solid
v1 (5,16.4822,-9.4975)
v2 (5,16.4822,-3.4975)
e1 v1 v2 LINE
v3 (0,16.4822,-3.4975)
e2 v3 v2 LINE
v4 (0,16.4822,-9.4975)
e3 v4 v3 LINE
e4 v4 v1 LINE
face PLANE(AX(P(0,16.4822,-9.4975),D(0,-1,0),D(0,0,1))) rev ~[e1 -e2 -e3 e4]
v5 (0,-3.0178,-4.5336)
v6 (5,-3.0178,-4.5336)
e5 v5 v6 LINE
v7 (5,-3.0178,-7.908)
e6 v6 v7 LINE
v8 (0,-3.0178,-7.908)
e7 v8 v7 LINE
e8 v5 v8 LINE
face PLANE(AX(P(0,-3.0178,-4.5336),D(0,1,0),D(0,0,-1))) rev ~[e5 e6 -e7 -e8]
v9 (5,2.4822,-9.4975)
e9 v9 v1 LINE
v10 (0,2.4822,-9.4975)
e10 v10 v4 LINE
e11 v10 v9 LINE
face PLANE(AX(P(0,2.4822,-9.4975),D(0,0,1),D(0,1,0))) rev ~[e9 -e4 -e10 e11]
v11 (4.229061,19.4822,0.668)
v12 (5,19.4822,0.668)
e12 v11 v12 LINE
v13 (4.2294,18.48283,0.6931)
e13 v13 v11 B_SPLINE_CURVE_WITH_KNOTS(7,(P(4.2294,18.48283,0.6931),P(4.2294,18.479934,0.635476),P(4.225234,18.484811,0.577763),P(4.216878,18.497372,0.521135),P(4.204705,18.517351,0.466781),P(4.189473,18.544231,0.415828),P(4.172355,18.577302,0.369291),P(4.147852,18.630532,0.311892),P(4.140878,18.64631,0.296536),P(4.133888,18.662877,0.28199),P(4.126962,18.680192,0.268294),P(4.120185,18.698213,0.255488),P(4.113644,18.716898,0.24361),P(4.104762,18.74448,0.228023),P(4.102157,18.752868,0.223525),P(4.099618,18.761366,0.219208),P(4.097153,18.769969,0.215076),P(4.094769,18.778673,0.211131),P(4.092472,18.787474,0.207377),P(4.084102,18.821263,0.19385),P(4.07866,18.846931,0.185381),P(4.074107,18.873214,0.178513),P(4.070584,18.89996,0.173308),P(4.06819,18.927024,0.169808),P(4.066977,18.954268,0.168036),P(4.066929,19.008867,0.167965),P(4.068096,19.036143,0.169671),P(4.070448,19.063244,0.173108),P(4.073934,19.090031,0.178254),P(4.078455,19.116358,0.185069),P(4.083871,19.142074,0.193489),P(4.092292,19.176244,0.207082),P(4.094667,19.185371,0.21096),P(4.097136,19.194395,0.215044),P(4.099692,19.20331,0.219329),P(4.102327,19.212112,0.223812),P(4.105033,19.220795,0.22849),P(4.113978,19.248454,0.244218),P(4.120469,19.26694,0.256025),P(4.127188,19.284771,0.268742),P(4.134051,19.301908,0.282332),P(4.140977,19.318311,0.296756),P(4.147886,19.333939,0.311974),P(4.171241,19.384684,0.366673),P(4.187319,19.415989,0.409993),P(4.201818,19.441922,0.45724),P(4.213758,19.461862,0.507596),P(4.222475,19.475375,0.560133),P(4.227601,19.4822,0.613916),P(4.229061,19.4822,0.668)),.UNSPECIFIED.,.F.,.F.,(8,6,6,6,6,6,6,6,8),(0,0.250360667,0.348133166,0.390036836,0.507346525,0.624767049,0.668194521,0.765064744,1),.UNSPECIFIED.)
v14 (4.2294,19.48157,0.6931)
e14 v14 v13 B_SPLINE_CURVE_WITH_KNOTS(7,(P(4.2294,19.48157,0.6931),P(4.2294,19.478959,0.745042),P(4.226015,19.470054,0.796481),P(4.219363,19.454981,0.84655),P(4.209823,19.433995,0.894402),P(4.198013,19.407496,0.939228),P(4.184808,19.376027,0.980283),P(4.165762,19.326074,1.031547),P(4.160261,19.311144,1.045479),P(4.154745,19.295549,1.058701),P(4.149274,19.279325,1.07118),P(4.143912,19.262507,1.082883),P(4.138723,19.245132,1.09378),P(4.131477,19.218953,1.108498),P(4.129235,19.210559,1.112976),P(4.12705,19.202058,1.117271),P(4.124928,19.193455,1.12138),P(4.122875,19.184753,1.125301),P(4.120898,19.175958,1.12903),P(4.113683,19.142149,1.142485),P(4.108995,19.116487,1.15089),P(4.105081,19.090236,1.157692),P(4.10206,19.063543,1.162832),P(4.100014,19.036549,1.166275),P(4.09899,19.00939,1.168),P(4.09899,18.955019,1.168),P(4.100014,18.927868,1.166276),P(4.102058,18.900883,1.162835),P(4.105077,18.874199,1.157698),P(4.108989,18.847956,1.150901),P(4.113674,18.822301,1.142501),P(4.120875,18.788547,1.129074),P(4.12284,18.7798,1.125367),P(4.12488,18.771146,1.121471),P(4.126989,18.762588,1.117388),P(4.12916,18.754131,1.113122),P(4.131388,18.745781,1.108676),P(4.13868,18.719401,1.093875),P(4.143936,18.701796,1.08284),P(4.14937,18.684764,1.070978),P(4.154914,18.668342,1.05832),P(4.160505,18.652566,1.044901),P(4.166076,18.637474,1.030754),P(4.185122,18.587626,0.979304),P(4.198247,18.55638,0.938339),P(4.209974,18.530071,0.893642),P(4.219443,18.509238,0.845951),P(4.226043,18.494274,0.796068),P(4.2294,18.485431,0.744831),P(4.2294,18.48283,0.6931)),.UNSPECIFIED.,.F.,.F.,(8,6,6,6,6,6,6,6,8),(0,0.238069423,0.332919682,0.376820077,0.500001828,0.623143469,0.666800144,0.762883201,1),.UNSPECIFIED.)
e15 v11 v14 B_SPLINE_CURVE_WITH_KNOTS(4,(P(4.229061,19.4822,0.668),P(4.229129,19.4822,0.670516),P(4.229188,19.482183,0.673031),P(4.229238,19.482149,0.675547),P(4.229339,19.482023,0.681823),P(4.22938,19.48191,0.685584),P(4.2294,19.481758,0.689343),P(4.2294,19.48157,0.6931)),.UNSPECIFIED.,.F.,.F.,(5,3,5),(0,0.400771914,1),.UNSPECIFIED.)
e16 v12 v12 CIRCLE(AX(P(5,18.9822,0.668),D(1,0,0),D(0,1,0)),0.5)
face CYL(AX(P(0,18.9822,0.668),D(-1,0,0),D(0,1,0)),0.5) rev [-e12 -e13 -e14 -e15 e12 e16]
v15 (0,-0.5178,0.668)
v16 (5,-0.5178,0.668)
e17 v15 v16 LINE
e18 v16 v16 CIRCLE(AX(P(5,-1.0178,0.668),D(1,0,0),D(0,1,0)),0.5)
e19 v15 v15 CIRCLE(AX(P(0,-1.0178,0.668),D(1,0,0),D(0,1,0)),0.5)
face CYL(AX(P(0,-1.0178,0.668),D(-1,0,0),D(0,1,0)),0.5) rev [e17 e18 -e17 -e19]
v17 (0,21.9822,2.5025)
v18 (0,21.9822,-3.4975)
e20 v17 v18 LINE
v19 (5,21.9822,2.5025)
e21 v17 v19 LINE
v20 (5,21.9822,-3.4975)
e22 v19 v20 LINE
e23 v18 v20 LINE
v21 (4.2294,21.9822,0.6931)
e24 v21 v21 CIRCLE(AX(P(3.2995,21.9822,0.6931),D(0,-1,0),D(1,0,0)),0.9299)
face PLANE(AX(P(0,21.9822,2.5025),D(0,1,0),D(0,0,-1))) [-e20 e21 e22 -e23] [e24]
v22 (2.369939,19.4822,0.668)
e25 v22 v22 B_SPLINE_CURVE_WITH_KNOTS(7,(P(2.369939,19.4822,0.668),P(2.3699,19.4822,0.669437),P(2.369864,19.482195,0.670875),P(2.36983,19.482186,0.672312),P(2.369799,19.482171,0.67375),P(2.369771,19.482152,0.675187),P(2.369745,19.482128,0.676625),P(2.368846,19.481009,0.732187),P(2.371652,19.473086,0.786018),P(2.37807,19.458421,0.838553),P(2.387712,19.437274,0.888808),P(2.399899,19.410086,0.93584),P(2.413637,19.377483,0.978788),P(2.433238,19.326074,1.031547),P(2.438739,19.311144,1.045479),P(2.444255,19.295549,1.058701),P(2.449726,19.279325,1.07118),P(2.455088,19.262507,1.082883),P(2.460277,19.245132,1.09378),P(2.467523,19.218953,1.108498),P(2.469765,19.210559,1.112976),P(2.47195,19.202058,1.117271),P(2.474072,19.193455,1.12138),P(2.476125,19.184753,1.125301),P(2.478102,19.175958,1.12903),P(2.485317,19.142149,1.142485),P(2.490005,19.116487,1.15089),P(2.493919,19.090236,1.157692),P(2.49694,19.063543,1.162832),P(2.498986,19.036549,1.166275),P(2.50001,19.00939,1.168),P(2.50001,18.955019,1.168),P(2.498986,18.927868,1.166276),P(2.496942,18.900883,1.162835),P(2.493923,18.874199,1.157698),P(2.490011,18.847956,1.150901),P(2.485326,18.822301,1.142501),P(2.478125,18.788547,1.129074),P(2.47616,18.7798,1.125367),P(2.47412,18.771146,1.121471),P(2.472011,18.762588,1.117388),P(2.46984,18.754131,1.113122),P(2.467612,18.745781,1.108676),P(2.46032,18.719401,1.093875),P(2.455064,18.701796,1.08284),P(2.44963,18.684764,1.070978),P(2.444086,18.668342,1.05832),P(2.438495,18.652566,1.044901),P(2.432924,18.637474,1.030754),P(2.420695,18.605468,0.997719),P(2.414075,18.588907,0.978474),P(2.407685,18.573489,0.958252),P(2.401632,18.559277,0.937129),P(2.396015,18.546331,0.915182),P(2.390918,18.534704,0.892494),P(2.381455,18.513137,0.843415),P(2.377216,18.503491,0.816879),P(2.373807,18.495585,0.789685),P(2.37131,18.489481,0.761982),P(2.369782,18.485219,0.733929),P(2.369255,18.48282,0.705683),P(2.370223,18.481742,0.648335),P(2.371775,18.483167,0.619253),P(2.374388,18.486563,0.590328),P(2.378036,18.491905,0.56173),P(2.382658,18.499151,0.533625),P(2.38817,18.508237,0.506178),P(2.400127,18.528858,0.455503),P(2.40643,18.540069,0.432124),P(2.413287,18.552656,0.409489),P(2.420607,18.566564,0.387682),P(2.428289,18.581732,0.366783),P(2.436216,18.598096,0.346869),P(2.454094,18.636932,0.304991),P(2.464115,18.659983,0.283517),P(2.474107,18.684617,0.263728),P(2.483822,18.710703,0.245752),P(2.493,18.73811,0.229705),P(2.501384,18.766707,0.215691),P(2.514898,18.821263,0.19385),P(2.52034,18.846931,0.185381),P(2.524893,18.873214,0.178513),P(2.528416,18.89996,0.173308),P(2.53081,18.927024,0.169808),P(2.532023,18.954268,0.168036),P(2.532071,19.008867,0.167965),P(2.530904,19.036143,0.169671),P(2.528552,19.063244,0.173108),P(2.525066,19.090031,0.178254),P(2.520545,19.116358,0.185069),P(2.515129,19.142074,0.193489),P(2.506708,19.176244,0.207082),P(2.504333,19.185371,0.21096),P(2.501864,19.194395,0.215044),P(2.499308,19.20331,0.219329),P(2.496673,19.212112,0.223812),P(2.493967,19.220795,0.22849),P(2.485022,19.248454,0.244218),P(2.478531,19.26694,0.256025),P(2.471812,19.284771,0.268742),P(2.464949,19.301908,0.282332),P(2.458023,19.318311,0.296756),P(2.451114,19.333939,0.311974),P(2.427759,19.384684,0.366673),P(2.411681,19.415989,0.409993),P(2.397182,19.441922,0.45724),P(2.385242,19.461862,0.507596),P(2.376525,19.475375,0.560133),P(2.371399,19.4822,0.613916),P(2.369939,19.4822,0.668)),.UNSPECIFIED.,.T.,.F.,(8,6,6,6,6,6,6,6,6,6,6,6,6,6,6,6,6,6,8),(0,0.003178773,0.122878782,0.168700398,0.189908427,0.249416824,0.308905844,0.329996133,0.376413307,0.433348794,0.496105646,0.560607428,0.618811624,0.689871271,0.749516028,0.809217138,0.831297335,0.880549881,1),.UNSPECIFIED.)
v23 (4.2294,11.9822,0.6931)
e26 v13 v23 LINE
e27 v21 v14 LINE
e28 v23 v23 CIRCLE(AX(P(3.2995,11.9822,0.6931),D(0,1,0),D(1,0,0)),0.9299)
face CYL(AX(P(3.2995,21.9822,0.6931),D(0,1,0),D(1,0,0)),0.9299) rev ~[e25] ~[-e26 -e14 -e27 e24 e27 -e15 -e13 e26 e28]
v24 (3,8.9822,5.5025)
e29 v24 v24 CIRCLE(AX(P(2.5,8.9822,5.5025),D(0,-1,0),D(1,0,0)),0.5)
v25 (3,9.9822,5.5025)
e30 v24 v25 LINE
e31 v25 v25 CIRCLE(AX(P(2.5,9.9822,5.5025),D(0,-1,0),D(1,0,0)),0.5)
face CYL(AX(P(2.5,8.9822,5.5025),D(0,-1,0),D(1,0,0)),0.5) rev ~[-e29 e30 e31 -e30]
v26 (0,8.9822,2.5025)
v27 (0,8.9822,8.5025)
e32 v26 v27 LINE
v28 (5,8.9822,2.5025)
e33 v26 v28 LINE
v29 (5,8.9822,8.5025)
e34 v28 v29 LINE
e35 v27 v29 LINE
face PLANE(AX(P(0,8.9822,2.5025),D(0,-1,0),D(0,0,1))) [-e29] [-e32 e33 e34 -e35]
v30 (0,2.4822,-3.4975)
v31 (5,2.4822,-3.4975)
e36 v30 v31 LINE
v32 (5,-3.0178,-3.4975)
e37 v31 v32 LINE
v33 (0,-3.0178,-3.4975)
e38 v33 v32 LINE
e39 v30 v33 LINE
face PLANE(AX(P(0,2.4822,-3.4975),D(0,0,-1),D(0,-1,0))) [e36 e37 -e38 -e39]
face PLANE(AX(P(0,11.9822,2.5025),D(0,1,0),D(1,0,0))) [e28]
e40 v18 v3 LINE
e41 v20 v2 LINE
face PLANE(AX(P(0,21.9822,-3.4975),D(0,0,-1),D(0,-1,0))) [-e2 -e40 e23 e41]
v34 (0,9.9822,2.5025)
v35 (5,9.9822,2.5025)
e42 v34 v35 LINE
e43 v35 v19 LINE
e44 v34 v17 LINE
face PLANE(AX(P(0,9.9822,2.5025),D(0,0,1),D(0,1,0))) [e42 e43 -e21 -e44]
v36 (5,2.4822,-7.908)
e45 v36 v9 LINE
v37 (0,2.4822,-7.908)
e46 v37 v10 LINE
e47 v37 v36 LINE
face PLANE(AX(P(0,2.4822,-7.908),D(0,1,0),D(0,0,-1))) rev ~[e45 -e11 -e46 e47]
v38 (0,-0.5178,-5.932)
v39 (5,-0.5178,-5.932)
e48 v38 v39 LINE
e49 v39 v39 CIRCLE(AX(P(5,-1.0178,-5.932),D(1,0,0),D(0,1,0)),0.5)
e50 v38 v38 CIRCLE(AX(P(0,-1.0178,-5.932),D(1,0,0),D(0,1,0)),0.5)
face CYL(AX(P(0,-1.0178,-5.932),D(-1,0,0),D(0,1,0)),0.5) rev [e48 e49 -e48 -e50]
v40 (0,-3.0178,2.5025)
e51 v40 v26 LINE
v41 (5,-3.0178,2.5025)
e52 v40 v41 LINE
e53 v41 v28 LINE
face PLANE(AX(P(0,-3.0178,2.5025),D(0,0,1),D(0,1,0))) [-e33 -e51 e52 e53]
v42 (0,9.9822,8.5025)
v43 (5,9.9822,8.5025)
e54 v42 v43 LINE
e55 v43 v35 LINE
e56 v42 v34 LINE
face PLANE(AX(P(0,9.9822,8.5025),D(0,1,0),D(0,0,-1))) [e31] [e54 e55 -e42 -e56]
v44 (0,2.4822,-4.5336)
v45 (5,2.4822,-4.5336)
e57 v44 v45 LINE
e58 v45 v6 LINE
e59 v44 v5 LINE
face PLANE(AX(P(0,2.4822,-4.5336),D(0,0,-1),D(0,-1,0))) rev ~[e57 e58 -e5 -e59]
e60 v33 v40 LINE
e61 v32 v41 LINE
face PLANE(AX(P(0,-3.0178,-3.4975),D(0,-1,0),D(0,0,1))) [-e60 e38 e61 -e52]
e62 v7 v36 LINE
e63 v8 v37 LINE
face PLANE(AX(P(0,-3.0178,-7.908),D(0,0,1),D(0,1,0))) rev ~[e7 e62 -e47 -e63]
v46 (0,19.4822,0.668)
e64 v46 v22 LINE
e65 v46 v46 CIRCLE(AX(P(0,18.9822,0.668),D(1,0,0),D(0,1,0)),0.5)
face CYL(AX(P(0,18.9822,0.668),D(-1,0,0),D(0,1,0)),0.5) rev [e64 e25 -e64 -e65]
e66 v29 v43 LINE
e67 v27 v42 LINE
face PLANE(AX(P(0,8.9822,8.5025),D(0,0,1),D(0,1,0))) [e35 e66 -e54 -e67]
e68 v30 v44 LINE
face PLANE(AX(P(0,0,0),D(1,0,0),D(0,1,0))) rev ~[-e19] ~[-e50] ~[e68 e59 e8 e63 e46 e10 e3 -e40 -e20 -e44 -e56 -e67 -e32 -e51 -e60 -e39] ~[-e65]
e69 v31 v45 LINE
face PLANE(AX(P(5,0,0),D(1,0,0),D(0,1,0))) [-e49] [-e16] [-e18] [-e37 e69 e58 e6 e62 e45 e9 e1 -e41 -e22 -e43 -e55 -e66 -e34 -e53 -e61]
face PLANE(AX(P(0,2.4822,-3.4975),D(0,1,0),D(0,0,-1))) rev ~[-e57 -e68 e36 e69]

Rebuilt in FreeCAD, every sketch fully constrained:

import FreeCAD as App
import Part
import Sketcher


def add_polygon(sketch, points):
    """Adds a closed chain of lines whose ends are joined by coincident constraints."""
    first, n = sketch.GeometryCount, len(points)
    for a, b in zip(points, points[1:] + points[:1]):
        sketch.addGeometry(Part.LineSegment(App.Vector(*a, 0), App.Vector(*b, 0)), False)
    for i in range(n):
        sketch.addConstraint(Sketcher.Constraint("Coincident", first + i, 2, first + (i + 1) % n, 1))

doc = App.newDocument("Part")
body = doc.addObject("PartDesign::Body", "Body")

# Sketch on YZ plane
sketch1 = body.newObject("Sketcher::SketchObject", "Sketch")
sketch1.AttachmentSupport = (doc.getObject("YZ_Plane"), [""])
sketch1.MapMode = "FlatFace"
add_polygon(sketch1, [(9, 2.5), (-3, 2.5), (-3, -3.5), (2.5, -3.5), (2.5, -4.5), (-3, -4.5), (-3, -7.9), (2.5, -7.9), (2.5, -9.5), (16.5, -9.5), (16.5, -3.5), (22, -3.5), (22, 2.5), (10, 2.5), (10, 8.5), (9, 8.5)])  # lines 0-15
sketch1.addGeometry(Part.Circle(App.Vector(-1, 0.7, 0), App.Vector(0, 0, 1), 0.5), False)  # 16
sketch1.addGeometry(Part.Circle(App.Vector(19, 0.7, 0), App.Vector(0, 0, 1), 0.5), False)  # 17
sketch1.addGeometry(Part.Circle(App.Vector(-1, -5.9, 0), App.Vector(0, 0, 1), 0.5), False)  # 18
sketch1.addConstraint([
    Sketcher.Constraint("Horizontal", 0),
    Sketcher.Constraint("Vertical", 1),
    Sketcher.Constraint("Horizontal", 2),
    Sketcher.Constraint("Vertical", 3),
    Sketcher.Constraint("Horizontal", 4),
    Sketcher.Constraint("Vertical", 5),
    Sketcher.Constraint("Horizontal", 6),
    Sketcher.Constraint("Vertical", 7),
    Sketcher.Constraint("Horizontal", 8),
    Sketcher.Constraint("Vertical", 9),
    Sketcher.Constraint("Horizontal", 10),
    Sketcher.Constraint("Vertical", 11),
    Sketcher.Constraint("Horizontal", 12),
    Sketcher.Constraint("Vertical", 13),
    Sketcher.Constraint("Horizontal", 14),
    Sketcher.Constraint("Vertical", 15),
    Sketcher.Constraint("Equal", 16, 17),
    Sketcher.Constraint("Equal", 17, 18),
    Sketcher.Constraint("Horizontal", 16, 3, 17, 3),
    Sketcher.Constraint("Horizontal", 2, 2, 9, 2),
    Sketcher.Constraint("Horizontal", 0, 2, 11, 2),
    Sketcher.Constraint("Vertical", 16, 3, 18, 3),
    Sketcher.Constraint("Vertical", 1, 2, 4, 2),
    Sketcher.Constraint("Vertical", 3, 2, 6, 2),
    Sketcher.Constraint("Equal", 6, 10),
    Sketcher.Constraint("Equal", 0, 12),
    Sketcher.Constraint("Equal", 1, 9),
    Sketcher.Constraint("Equal", 11, 13),
    Sketcher.Constraint("Diameter", 16, 1.0),
    Sketcher.Constraint("DistanceX", 8, 1, 8, 2, 14.0),
    Sketcher.Constraint("DistanceX", 14, 2, 14, 1, 1.0),
    Sketcher.Constraint("DistanceY", 1, 2, 1, 1, 6.0),
    Sketcher.Constraint("DistanceX", 2, 1, 2, 2, 5.5),
    Sketcher.Constraint("DistanceX", 16, 3, 17, 3, 20.0),
    Sketcher.Constraint("DistanceX", 0, 2, 16, 3, 2.0),
    Sketcher.Constraint("DistanceY", 18, 3, 16, 3, 6.6),
    Sketcher.Constraint("DistanceY", 3, 2, 3, 1, 1.036),
    Sketcher.Constraint("DistanceY", 5, 2, 5, 1, 3.3744),
    Sketcher.Constraint("DistanceY", -1, 1, 16, 3, 0.668),
    Sketcher.Constraint("DistanceY", 5, 2, -1, 1, 7.908),
    Sketcher.Constraint("DistanceX", 16, 3, -1, 1, 1.0178),
])
pad1 = body.newObject("PartDesign::Pad", "Pad")
pad1.Profile = sketch1
pad1.Length = 5

# Sketch on XZ plane
sketch2 = body.newObject("Sketcher::SketchObject", "Sketch001")
sketch2.AttachmentSupport = (doc.getObject("XZ_Plane"), [""])
sketch2.MapMode = "FlatFace"
sketch2.AttachmentOffset = App.Placement(App.Vector(0, 0, -8.9822), App.Rotation())
sketch2.addGeometry(Part.Circle(App.Vector(2.5, 5.5, 0), App.Vector(0, 0, 1), 0.5), False)
sketch2.addConstraint([
    Sketcher.Constraint("Diameter", 0, 1.0),
    Sketcher.Constraint("DistanceX", -1, 1, 0, 3, 2.5),
    Sketcher.Constraint("DistanceY", -1, 1, 0, 3, 5.5025),
])
pocket1 = body.newObject("PartDesign::Pocket", "Pocket")
pocket1.Profile = sketch2
pocket1.Length = 5

# Sketch on XZ plane
sketch3 = body.newObject("Sketcher::SketchObject", "Sketch002")
sketch3.AttachmentSupport = (doc.getObject("XZ_Plane"), [""])
sketch3.MapMode = "FlatFace"
sketch3.AttachmentOffset = App.Placement(App.Vector(0, 0, -21.9822), App.Rotation())
sketch3.addGeometry(Part.Circle(App.Vector(3.3, 0.7, 0), App.Vector(0, 0, 1), 0.9), False)
sketch3.addConstraint([
    Sketcher.Constraint("Diameter", 0, 1.8598),
    Sketcher.Constraint("DistanceY", -1, 1, 0, 3, 0.693),
    Sketcher.Constraint("DistanceX", -1, 1, 0, 3, 3.2995),
])
pocket2 = body.newObject("PartDesign::Pocket", "Pocket001")
pocket2.Profile = sketch3
pocket2.Length = 10
pocket2.Reversed = True

doc.recompute()
